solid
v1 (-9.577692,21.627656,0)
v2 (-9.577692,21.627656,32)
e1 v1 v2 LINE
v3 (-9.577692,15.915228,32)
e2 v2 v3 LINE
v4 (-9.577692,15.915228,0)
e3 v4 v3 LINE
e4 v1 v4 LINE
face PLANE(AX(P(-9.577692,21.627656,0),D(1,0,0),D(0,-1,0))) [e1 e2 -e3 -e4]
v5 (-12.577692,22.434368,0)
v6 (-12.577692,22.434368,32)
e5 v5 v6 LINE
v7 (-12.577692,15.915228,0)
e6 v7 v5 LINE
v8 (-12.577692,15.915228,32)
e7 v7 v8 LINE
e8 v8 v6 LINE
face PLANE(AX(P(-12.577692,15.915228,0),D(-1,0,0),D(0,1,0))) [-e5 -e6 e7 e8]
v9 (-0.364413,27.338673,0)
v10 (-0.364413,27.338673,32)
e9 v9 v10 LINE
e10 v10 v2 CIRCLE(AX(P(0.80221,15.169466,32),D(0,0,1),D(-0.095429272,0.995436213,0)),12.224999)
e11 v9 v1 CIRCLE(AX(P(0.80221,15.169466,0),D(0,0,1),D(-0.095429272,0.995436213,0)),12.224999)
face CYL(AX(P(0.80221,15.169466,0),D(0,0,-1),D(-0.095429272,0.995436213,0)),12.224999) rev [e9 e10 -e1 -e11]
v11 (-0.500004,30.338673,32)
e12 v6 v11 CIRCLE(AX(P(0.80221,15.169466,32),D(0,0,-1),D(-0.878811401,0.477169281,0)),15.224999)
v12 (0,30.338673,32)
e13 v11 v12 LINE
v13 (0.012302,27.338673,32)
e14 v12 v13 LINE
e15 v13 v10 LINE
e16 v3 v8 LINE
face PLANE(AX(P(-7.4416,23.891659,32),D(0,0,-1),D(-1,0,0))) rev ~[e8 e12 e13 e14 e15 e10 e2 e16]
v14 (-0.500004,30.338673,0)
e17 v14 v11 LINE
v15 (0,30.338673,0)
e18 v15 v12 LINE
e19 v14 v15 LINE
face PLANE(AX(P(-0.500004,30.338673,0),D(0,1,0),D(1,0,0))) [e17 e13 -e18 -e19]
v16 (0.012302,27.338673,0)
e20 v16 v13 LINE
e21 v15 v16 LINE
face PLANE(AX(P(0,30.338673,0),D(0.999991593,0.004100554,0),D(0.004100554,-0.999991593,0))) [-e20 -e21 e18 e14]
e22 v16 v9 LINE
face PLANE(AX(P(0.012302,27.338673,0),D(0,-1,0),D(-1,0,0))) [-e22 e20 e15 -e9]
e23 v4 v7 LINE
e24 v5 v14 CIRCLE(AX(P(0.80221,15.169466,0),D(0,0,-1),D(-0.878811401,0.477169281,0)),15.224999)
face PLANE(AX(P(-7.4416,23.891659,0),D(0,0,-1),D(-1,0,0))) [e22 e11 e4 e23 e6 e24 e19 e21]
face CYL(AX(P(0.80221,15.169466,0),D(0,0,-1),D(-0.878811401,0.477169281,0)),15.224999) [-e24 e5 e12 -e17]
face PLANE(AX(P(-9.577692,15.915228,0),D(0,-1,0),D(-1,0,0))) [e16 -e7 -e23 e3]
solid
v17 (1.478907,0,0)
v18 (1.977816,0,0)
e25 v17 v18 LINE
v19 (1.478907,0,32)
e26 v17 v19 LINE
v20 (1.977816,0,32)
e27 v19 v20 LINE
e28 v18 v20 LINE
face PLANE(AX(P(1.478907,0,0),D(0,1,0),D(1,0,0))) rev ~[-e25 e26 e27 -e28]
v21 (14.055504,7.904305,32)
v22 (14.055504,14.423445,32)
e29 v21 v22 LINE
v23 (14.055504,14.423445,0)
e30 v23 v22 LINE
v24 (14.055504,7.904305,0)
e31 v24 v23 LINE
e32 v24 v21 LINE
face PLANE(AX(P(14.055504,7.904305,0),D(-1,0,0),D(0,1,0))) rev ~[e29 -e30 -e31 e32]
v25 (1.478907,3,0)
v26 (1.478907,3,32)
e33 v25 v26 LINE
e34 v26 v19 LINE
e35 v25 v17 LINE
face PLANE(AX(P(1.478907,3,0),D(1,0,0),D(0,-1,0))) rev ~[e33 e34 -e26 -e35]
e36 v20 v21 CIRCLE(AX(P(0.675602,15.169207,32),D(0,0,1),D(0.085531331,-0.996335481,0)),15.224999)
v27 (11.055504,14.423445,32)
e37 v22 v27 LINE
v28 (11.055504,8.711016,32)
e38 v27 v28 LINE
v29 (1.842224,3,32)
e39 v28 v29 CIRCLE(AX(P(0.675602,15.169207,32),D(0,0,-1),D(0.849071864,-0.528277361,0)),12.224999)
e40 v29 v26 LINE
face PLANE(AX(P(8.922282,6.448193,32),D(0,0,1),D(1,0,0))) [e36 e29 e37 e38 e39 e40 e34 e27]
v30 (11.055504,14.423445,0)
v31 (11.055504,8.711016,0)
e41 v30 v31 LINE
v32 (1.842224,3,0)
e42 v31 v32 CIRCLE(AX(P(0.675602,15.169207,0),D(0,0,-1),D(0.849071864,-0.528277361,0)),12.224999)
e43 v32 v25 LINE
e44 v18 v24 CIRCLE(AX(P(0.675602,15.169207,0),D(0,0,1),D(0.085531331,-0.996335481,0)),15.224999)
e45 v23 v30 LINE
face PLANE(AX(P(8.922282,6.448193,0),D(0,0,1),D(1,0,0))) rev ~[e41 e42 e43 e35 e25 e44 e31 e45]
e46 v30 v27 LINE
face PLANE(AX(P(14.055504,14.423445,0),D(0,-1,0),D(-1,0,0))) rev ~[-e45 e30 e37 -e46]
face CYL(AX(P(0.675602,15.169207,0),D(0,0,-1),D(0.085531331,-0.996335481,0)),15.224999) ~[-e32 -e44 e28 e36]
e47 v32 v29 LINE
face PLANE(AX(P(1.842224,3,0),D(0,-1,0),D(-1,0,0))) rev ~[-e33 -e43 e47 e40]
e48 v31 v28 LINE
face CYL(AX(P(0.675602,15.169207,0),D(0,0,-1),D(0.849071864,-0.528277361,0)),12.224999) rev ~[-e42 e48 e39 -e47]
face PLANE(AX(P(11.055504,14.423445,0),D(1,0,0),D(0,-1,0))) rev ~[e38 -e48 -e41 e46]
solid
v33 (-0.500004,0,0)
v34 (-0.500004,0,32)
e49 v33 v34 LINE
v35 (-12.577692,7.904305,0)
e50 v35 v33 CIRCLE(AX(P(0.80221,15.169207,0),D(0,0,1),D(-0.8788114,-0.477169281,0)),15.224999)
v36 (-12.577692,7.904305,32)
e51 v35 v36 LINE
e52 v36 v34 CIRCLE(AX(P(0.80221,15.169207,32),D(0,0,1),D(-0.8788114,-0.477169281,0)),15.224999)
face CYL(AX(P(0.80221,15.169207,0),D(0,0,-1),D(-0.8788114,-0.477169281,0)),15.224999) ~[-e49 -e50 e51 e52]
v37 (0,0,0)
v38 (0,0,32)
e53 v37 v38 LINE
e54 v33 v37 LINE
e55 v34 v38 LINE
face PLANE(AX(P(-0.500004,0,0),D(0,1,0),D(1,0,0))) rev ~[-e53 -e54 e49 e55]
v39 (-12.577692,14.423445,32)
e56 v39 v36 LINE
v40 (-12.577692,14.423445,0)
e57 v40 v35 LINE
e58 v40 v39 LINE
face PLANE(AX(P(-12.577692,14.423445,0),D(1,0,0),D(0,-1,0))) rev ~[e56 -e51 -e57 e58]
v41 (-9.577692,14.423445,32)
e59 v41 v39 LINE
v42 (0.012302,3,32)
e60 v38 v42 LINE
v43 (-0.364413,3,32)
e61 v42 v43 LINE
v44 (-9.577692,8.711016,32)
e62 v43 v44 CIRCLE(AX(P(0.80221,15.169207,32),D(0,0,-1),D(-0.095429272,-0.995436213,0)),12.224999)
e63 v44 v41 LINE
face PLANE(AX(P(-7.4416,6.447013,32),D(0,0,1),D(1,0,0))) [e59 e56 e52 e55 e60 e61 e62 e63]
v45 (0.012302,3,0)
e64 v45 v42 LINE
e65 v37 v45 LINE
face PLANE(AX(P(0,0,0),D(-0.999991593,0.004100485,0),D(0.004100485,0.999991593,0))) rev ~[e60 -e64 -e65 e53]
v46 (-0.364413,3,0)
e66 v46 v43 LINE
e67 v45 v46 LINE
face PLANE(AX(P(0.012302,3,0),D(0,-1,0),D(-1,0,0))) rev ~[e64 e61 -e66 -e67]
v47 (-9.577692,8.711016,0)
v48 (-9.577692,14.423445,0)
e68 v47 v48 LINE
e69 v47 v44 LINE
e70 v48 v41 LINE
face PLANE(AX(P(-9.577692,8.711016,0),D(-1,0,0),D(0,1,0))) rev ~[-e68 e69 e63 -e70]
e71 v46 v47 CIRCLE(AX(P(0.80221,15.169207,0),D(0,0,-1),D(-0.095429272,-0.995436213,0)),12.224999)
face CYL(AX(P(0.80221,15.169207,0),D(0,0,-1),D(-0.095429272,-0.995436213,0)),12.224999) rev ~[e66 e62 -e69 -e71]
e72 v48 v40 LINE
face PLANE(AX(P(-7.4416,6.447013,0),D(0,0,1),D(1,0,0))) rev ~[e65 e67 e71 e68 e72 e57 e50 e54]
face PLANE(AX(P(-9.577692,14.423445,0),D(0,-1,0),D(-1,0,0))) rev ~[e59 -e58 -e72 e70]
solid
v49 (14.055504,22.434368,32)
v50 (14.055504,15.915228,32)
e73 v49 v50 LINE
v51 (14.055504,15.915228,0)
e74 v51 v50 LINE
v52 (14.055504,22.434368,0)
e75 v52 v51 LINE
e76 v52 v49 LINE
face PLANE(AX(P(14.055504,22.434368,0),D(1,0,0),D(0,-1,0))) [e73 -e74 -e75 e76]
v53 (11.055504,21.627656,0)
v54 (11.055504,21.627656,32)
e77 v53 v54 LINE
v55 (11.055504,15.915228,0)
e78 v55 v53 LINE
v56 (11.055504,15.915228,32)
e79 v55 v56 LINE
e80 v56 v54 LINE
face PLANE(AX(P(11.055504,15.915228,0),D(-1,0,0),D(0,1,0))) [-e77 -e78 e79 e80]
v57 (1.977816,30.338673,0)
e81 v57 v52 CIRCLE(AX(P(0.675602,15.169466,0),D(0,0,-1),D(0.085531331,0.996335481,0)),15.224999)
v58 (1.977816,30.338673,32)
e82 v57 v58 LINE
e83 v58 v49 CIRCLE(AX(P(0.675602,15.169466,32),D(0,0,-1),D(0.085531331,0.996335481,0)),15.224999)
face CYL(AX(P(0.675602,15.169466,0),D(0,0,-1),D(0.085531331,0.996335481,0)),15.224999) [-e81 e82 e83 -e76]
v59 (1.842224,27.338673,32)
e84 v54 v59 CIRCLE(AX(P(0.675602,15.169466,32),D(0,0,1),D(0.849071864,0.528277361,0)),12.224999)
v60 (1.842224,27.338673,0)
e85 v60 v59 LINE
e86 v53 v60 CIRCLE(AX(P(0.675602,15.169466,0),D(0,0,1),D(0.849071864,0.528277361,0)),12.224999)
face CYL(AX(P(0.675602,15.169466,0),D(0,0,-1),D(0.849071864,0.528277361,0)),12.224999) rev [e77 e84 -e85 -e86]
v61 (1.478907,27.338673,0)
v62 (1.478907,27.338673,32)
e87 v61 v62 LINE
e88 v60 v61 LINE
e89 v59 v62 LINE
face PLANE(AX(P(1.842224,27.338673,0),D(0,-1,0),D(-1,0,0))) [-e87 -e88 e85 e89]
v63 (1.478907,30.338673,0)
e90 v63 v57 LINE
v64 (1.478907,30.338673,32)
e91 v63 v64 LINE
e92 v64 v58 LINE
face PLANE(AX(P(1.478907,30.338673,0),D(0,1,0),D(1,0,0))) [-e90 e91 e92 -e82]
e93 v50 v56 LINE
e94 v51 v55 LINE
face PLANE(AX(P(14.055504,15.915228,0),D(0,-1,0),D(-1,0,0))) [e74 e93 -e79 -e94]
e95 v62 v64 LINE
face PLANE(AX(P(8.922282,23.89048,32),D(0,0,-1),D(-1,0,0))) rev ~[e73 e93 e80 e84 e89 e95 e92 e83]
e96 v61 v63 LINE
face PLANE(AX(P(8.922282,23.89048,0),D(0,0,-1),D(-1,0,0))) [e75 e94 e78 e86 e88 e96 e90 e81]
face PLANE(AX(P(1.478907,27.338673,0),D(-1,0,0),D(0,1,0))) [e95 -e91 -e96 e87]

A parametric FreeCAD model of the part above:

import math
import FreeCAD as App
import Part
import Sketcher
Q = App.Units.Quantity

doc = App.newDocument("Part")
body = doc.addObject("PartDesign::Body", "Body")

# Sketch on XY plane
sketch1 = doc.addObject("Sketcher::SketchObject", "Sketch")
body.addObject(sketch1)
sketch1.AttachmentSupport = (doc.XY_Plane, [""])
sketch1.MapMode = "FlatFace"
sketch1.addGeometry([
    Part.LineSegment(App.Vector(11.055504, 21.627656, 0), App.Vector(11.055504, 15.915228, 0)),  # 0
    Part.LineSegment(App.Vector(11.055504, 15.915228, 0), App.Vector(14.055504, 15.915228, 0)),  # 1
    Part.LineSegment(App.Vector(14.055504, 15.915228, 0), App.Vector(14.055504, 22.434368, 0)),  # 2
    Part.ArcOfCircle(Part.Circle(App.Vector(0.675602, 15.169466, 0), App.Vector(0, 0, 1), 15.224999), math.radians(28.500686), math.radians(85.093421)),  # 3
    Part.LineSegment(App.Vector(1.977816, 30.338673, 0), App.Vector(1.478907, 30.338673, 0)),  # 4
    Part.LineSegment(App.Vector(1.478907, 30.338673, 0), App.Vector(1.478907, 27.338673, 0)),  # 5
    Part.LineSegment(App.Vector(1.478907, 27.338673, 0), App.Vector(1.842224, 27.338673, 0)),  # 6
    Part.ArcOfCircle(Part.Circle(App.Vector(0.675602, 15.169466, 0), App.Vector(0, 0, 1), 12.224999), math.radians(31.889137), math.radians(84.523972)),  # 7
], False)
sketch1.addConstraint([
    Sketcher.Constraint("Coincident", 0, 2, 1, 1),
    Sketcher.Constraint("Coincident", 1, 2, 2, 1),
    Sketcher.Constraint("Coincident", 2, 2, 3, 1),
    Sketcher.Constraint("Coincident", 3, 2, 4, 1),
    Sketcher.Constraint("Coincident", 4, 2, 5, 1),
    Sketcher.Constraint("Coincident", 5, 2, 6, 1),
    Sketcher.Constraint("Coincident", 6, 2, 7, 2),
    Sketcher.Constraint("Coincident", 7, 1, 0, 1),
    Sketcher.Constraint("Vertical", 0),
    Sketcher.Constraint("Horizontal", 1),
    Sketcher.Constraint("Vertical", 2),
    Sketcher.Constraint("Horizontal", 4),
    Sketcher.Constraint("Vertical", 5),
    Sketcher.Constraint("Horizontal", 6),
    Sketcher.Constraint("Coincident", 7, 3, 3, 3),
    Sketcher.Constraint("Equal", 1, 5),
    Sketcher.Constraint("DistanceX", 1, 1, 1, 2, Q("3 mm")),
    Sketcher.Constraint("Radius", 3, Q("15.224999 mm")),
    Sketcher.Constraint("Radius", 7, Q("12.224999 mm")),
    Sketcher.Constraint("DistanceX", 4, 2, 4, 1, Q("0.498909 mm")),
    Sketcher.Constraint("DistanceY", 0, 2, 0, 1, Q("5.712428 mm")),
    Sketcher.Constraint("DistanceY", 2, 1, 2, 2, Q("6.51914 mm")),
    Sketcher.Constraint("DistanceX", -1, 1, 3, 3, Q("0.675602 mm")),
    Sketcher.Constraint("DistanceX", 6, 1, 6, 2, Q("0.363317 mm")),
    Sketcher.Constraint("DistanceY", -1, 1, 3, 3, Q("15.169466 mm")),
])
pad1 = doc.addObject("PartDesign::Pad", "Pad")
body.addObject(pad1)
pad1.Profile = sketch1
pad1.Length = 32
body2 = doc.addObject("PartDesign::Body", "Body001")

# Sketch on XY plane
sketch2 = doc.addObject("Sketcher::SketchObject", "Sketch001")
body2.addObject(sketch2)
sketch2.AttachmentSupport = (doc.getObject("XY_Plane001"), [""])
sketch2.MapMode = "FlatFace"
sketch2.addGeometry([
    Part.LineSegment(App.Vector(0, 0, 0), App.Vector(0.012302, 3, 0)),  # 0
    Part.LineSegment(App.Vector(0.012302, 3, 0), App.Vector(-0.364413, 3, 0)),  # 1
    Part.ArcOfCircle(Part.Circle(App.Vector(0.80221, 15.169207, 0), App.Vector(0, 0, 1), 12.224999), math.radians(-148.110863), math.radians(-95.476028)),  # 2
    Part.LineSegment(App.Vector(-9.577692, 8.711016, 0), App.Vector(-9.577692, 14.423445, 0)),  # 3
    Part.LineSegment(App.Vector(-9.577692, 14.423445, 0), App.Vector(-12.577692, 14.423445, 0)),  # 4
    Part.LineSegment(App.Vector(-12.577692, 14.423445, 0), App.Vector(-12.577692, 7.904305, 0)),  # 5
    Part.ArcOfCircle(Part.Circle(App.Vector(0.80221, 15.169207, 0), App.Vector(0, 0, 1), 15.224999), math.radians(-151.499314), math.radians(-94.906579)),  # 6
    Part.LineSegment(App.Vector(-0.500004, 0, 0), App.Vector(0, 0, 0)),  # 7
], False)
sketch2.addConstraint([
    Sketcher.Constraint("Coincident", 0, 2, 1, 1),
    Sketcher.Constraint("Coincident", 1, 2, 2, 2),
    Sketcher.Constraint("Coincident", 2, 1, 3, 1),
    Sketcher.Constraint("Coincident", 3, 2, 4, 1),
    Sketcher.Constraint("Coincident", 4, 2, 5, 1),
    Sketcher.Constraint("Coincident", 5, 2, 6, 1),
    Sketcher.Constraint("Coincident", 6, 2, 7, 1),
    Sketcher.Constraint("Coincident", 7, 2, 0, 1),
    Sketcher.Constraint("Horizontal", 1),
    Sketcher.Constraint("Vertical", 3),
    Sketcher.Constraint("Horizontal", 4),
    Sketcher.Constraint("Vertical", 5),
    Sketcher.Constraint("Horizontal", 7),
    Sketcher.Constraint("Coincident", 7, 2, -1, 1),
    Sketcher.Constraint("Coincident", 6, 3, 2, 3),
    Sketcher.Constraint("DistanceX", 4, 2, 4, 1, Q("3 mm")),
    Sketcher.Constraint("DistanceY", -1, 1, 0, 2, Q("3 mm")),
    Sketcher.Constraint("Radius", 2, Q("12.224999 mm")),
    Sketcher.Constraint("Radius", 6, Q("15.224999 mm")),
    Sketcher.Constraint("DistanceY", 3, 1, 3, 2, Q("5.712428 mm")),
    Sketcher.Constraint("DistanceY", 5, 2, 5, 1, Q("6.51914 mm")),
    Sketcher.Constraint("DistanceX", -1, 1, 0, 2, Q("0.012302 mm")),
    Sketcher.Constraint("DistanceX", 1, 2, 1, 1, Q("0.376714 mm")),
    Sketcher.Constraint("DistanceX", 7, 1, 7, 2, Q("0.500004 mm")),
])
pad2 = doc.addObject("PartDesign::Pad", "Pad001")
body2.addObject(pad2)
pad2.Profile = sketch2
pad2.Length = 32
body3 = doc.addObject("PartDesign::Body", "Body002")

# Sketch on XY plane
sketch3 = doc.addObject("Sketcher::SketchObject", "Sketch002")
body3.addObject(sketch3)
sketch3.AttachmentSupport = (doc.getObject("XY_Plane002"), [""])
sketch3.MapMode = "FlatFace"
sketch3.addGeometry([
    Part.LineSegment(App.Vector(0.012302, 27.338673, 0), App.Vector(0, 30.338673, 0)),  # 0
    Part.LineSegment(App.Vector(0, 30.338673, 0), App.Vector(-0.500004, 30.338673, 0)),  # 1
    Part.ArcOfCircle(Part.Circle(App.Vector(0.80221, 15.169466, 0), App.Vector(0, 0, 1), 15.224999), math.radians(94.906579), math.radians(151.499314)),  # 2
    Part.LineSegment(App.Vector(-12.577692, 22.434368, 0), App.Vector(-12.577692, 15.915228, 0)),  # 3
    Part.LineSegment(App.Vector(-12.577692, 15.915228, 0), App.Vector(-9.577692, 15.915228, 0)),  # 4
    Part.LineSegment(App.Vector(-9.577692, 15.915228, 0), App.Vector(-9.577692, 21.627656, 0)),  # 5
    Part.ArcOfCircle(Part.Circle(App.Vector(0.80221, 15.169466, 0), App.Vector(0, 0, 1), 12.224999), math.radians(95.476028), math.radians(148.110863)),  # 6
    Part.LineSegment(App.Vector(-0.364413, 27.338673, 0), App.Vector(0.012302, 27.338673, 0)),  # 7
], False)
sketch3.addConstraint([
    Sketcher.Constraint("Coincident", 0, 2, 1, 1),
    Sketcher.Constraint("Coincident", 1, 2, 2, 1),
    Sketcher.Constraint("Coincident", 2, 2, 3, 1),
    Sketcher.Constraint("Coincident", 3, 2, 4, 1),
    Sketcher.Constraint("Coincident", 4, 2, 5, 1),
    Sketcher.Constraint("Coincident", 5, 2, 6, 2),
    Sketcher.Constraint("Coincident", 6, 1, 7, 1),
    Sketcher.Constraint("Coincident", 7, 2, 0, 1),
    Sketcher.Constraint("Horizontal", 1),
    Sketcher.Constraint("Vertical", 3),
    Sketcher.Constraint("Horizontal", 4),
    Sketcher.Constraint("Vertical", 5),
    Sketcher.Constraint("Horizontal", 7),
    Sketcher.Constraint("Coincident", 6, 3, 2, 3),
    Sketcher.Constraint("PointOnObject", 0, 2, -2),
    Sketcher.Constraint("DistanceX", 4, 1, 4, 2, Q("3 mm")),
    Sketcher.Constraint("Radius", 2, Q("15.224999 mm")),
    Sketcher.Constraint("Radius", 6, Q("12.224999 mm")),
    Sketcher.Constraint("DistanceY", 6, 1, 1, 2, Q("3 mm")),
    Sketcher.Constraint("DistanceY", 3, 2, 3, 1, Q("6.51914 mm")),
    Sketcher.Constraint("DistanceY", 5, 1, 5, 2, Q("5.712428 mm")),
    Sketcher.Constraint("DistanceX", -1, 1, 7, 2, Q("0.012302 mm")),
    Sketcher.Constraint("DistanceX", 1, 2, 1, 1, Q("0.500004 mm")),
    Sketcher.Constraint("DistanceX", 7, 1, 7, 2, Q("0.376714 mm")),
    Sketcher.Constraint("DistanceY", -1, 1, 2, 3, Q("15.169466 mm")),
])
pad3 = doc.addObject("PartDesign::Pad", "Pad002")
body3.addObject(pad3)
pad3.Profile = sketch3
pad3.Length = 32
body4 = doc.addObject("PartDesign::Body", "Body003")

# Sketch on XY plane
sketch4 = doc.addObject("Sketcher::SketchObject", "Sketch003")
body4.addObject(sketch4)
sketch4.AttachmentSupport = (doc.getObject("XY_Plane003"), [""])
sketch4.MapMode = "FlatFace"
sketch4.addGeometry([
    Part.LineSegment(App.Vector(14.055504, 7.904305, 0), App.Vector(14.055504, 14.423445, 0)),  # 0
    Part.LineSegment(App.Vector(14.055504, 14.423445, 0), App.Vector(11.055504, 14.423445, 0)),  # 1
    Part.LineSegment(App.Vector(11.055504, 14.423445, 0), App.Vector(11.055504, 8.711016, 0)),  # 2
    Part.ArcOfCircle(Part.Circle(App.Vector(0.675602, 15.169207, 0), App.Vector(0, 0, 1), 12.224999), math.radians(-84.523972), math.radians(-31.889137)),  # 3
    Part.LineSegment(App.Vector(1.842224, 3, 0), App.Vector(1.478907, 3, 0)),  # 4
    Part.LineSegment(App.Vector(1.478907, 3, 0), App.Vector(1.478907, 0, 0)),  # 5
    Part.LineSegment(App.Vector(1.478907, 0, 0), App.Vector(1.977816, 0, 0)),  # 6
    Part.ArcOfCircle(Part.Circle(App.Vector(0.675602, 15.169207, 0), App.Vector(0, 0, 1), 15.224999), math.radians(-85.093421), math.radians(-28.500686)),  # 7
], False)
sketch4.addConstraint([
    Sketcher.Constraint("Coincident", 0, 2, 1, 1),
    Sketcher.Constraint("Coincident", 1, 2, 2, 1),
    Sketcher.Constraint("Coincident", 2, 2, 3, 2),
    Sketcher.Constraint("Coincident", 3, 1, 4, 1),
    Sketcher.Constraint("Coincident", 4, 2, 5, 1),
    Sketcher.Constraint("Coincident", 5, 2, 6, 1),
    Sketcher.Constraint("Coincident", 6, 2, 7, 1),
    Sketcher.Constraint("Coincident", 7, 2, 0, 1),
    Sketcher.Constraint("Vertical", 0),
    Sketcher.Constraint("Horizontal", 1),
    Sketcher.Constraint("Vertical", 2),
    Sketcher.Constraint("Horizontal", 4),
    Sketcher.Constraint("Vertical", 5),
    Sketcher.Constraint("Horizontal", 6),
    Sketcher.Constraint("Coincident", 7, 3, 3, 3),
    Sketcher.Constraint("PointOnObject", 5, 2, -1),
    Sketcher.Constraint("Equal", 1, 5),
    Sketcher.Constraint("DistanceX", 1, 2, 1, 1, Q("3 mm")),
    Sketcher.Constraint("Radius", 3, Q("12.224999 mm")),
    Sketcher.Constraint("Radius", 7, Q("15.224999 mm")),
    Sketcher.Constraint("DistanceX", 6, 1, 6, 2, Q("0.498909 mm")),
    Sketcher.Constraint("DistanceY", 0, 1, 0, 2, Q("6.51914 mm")),
    Sketcher.Constraint("DistanceY", 2, 2, 2, 1, Q("5.712428 mm")),
    Sketcher.Constraint("DistanceX", -1, 1, 3, 3, Q("0.675602 mm")),
    Sketcher.Constraint("DistanceX", 4, 2, 4, 1, Q("0.363317 mm")),
])
pad4 = doc.addObject("PartDesign::Pad", "Pad003")
body4.addObject(pad4)
pad4.Profile = sketch4
pad4.Length = 32

doc.recompute()
